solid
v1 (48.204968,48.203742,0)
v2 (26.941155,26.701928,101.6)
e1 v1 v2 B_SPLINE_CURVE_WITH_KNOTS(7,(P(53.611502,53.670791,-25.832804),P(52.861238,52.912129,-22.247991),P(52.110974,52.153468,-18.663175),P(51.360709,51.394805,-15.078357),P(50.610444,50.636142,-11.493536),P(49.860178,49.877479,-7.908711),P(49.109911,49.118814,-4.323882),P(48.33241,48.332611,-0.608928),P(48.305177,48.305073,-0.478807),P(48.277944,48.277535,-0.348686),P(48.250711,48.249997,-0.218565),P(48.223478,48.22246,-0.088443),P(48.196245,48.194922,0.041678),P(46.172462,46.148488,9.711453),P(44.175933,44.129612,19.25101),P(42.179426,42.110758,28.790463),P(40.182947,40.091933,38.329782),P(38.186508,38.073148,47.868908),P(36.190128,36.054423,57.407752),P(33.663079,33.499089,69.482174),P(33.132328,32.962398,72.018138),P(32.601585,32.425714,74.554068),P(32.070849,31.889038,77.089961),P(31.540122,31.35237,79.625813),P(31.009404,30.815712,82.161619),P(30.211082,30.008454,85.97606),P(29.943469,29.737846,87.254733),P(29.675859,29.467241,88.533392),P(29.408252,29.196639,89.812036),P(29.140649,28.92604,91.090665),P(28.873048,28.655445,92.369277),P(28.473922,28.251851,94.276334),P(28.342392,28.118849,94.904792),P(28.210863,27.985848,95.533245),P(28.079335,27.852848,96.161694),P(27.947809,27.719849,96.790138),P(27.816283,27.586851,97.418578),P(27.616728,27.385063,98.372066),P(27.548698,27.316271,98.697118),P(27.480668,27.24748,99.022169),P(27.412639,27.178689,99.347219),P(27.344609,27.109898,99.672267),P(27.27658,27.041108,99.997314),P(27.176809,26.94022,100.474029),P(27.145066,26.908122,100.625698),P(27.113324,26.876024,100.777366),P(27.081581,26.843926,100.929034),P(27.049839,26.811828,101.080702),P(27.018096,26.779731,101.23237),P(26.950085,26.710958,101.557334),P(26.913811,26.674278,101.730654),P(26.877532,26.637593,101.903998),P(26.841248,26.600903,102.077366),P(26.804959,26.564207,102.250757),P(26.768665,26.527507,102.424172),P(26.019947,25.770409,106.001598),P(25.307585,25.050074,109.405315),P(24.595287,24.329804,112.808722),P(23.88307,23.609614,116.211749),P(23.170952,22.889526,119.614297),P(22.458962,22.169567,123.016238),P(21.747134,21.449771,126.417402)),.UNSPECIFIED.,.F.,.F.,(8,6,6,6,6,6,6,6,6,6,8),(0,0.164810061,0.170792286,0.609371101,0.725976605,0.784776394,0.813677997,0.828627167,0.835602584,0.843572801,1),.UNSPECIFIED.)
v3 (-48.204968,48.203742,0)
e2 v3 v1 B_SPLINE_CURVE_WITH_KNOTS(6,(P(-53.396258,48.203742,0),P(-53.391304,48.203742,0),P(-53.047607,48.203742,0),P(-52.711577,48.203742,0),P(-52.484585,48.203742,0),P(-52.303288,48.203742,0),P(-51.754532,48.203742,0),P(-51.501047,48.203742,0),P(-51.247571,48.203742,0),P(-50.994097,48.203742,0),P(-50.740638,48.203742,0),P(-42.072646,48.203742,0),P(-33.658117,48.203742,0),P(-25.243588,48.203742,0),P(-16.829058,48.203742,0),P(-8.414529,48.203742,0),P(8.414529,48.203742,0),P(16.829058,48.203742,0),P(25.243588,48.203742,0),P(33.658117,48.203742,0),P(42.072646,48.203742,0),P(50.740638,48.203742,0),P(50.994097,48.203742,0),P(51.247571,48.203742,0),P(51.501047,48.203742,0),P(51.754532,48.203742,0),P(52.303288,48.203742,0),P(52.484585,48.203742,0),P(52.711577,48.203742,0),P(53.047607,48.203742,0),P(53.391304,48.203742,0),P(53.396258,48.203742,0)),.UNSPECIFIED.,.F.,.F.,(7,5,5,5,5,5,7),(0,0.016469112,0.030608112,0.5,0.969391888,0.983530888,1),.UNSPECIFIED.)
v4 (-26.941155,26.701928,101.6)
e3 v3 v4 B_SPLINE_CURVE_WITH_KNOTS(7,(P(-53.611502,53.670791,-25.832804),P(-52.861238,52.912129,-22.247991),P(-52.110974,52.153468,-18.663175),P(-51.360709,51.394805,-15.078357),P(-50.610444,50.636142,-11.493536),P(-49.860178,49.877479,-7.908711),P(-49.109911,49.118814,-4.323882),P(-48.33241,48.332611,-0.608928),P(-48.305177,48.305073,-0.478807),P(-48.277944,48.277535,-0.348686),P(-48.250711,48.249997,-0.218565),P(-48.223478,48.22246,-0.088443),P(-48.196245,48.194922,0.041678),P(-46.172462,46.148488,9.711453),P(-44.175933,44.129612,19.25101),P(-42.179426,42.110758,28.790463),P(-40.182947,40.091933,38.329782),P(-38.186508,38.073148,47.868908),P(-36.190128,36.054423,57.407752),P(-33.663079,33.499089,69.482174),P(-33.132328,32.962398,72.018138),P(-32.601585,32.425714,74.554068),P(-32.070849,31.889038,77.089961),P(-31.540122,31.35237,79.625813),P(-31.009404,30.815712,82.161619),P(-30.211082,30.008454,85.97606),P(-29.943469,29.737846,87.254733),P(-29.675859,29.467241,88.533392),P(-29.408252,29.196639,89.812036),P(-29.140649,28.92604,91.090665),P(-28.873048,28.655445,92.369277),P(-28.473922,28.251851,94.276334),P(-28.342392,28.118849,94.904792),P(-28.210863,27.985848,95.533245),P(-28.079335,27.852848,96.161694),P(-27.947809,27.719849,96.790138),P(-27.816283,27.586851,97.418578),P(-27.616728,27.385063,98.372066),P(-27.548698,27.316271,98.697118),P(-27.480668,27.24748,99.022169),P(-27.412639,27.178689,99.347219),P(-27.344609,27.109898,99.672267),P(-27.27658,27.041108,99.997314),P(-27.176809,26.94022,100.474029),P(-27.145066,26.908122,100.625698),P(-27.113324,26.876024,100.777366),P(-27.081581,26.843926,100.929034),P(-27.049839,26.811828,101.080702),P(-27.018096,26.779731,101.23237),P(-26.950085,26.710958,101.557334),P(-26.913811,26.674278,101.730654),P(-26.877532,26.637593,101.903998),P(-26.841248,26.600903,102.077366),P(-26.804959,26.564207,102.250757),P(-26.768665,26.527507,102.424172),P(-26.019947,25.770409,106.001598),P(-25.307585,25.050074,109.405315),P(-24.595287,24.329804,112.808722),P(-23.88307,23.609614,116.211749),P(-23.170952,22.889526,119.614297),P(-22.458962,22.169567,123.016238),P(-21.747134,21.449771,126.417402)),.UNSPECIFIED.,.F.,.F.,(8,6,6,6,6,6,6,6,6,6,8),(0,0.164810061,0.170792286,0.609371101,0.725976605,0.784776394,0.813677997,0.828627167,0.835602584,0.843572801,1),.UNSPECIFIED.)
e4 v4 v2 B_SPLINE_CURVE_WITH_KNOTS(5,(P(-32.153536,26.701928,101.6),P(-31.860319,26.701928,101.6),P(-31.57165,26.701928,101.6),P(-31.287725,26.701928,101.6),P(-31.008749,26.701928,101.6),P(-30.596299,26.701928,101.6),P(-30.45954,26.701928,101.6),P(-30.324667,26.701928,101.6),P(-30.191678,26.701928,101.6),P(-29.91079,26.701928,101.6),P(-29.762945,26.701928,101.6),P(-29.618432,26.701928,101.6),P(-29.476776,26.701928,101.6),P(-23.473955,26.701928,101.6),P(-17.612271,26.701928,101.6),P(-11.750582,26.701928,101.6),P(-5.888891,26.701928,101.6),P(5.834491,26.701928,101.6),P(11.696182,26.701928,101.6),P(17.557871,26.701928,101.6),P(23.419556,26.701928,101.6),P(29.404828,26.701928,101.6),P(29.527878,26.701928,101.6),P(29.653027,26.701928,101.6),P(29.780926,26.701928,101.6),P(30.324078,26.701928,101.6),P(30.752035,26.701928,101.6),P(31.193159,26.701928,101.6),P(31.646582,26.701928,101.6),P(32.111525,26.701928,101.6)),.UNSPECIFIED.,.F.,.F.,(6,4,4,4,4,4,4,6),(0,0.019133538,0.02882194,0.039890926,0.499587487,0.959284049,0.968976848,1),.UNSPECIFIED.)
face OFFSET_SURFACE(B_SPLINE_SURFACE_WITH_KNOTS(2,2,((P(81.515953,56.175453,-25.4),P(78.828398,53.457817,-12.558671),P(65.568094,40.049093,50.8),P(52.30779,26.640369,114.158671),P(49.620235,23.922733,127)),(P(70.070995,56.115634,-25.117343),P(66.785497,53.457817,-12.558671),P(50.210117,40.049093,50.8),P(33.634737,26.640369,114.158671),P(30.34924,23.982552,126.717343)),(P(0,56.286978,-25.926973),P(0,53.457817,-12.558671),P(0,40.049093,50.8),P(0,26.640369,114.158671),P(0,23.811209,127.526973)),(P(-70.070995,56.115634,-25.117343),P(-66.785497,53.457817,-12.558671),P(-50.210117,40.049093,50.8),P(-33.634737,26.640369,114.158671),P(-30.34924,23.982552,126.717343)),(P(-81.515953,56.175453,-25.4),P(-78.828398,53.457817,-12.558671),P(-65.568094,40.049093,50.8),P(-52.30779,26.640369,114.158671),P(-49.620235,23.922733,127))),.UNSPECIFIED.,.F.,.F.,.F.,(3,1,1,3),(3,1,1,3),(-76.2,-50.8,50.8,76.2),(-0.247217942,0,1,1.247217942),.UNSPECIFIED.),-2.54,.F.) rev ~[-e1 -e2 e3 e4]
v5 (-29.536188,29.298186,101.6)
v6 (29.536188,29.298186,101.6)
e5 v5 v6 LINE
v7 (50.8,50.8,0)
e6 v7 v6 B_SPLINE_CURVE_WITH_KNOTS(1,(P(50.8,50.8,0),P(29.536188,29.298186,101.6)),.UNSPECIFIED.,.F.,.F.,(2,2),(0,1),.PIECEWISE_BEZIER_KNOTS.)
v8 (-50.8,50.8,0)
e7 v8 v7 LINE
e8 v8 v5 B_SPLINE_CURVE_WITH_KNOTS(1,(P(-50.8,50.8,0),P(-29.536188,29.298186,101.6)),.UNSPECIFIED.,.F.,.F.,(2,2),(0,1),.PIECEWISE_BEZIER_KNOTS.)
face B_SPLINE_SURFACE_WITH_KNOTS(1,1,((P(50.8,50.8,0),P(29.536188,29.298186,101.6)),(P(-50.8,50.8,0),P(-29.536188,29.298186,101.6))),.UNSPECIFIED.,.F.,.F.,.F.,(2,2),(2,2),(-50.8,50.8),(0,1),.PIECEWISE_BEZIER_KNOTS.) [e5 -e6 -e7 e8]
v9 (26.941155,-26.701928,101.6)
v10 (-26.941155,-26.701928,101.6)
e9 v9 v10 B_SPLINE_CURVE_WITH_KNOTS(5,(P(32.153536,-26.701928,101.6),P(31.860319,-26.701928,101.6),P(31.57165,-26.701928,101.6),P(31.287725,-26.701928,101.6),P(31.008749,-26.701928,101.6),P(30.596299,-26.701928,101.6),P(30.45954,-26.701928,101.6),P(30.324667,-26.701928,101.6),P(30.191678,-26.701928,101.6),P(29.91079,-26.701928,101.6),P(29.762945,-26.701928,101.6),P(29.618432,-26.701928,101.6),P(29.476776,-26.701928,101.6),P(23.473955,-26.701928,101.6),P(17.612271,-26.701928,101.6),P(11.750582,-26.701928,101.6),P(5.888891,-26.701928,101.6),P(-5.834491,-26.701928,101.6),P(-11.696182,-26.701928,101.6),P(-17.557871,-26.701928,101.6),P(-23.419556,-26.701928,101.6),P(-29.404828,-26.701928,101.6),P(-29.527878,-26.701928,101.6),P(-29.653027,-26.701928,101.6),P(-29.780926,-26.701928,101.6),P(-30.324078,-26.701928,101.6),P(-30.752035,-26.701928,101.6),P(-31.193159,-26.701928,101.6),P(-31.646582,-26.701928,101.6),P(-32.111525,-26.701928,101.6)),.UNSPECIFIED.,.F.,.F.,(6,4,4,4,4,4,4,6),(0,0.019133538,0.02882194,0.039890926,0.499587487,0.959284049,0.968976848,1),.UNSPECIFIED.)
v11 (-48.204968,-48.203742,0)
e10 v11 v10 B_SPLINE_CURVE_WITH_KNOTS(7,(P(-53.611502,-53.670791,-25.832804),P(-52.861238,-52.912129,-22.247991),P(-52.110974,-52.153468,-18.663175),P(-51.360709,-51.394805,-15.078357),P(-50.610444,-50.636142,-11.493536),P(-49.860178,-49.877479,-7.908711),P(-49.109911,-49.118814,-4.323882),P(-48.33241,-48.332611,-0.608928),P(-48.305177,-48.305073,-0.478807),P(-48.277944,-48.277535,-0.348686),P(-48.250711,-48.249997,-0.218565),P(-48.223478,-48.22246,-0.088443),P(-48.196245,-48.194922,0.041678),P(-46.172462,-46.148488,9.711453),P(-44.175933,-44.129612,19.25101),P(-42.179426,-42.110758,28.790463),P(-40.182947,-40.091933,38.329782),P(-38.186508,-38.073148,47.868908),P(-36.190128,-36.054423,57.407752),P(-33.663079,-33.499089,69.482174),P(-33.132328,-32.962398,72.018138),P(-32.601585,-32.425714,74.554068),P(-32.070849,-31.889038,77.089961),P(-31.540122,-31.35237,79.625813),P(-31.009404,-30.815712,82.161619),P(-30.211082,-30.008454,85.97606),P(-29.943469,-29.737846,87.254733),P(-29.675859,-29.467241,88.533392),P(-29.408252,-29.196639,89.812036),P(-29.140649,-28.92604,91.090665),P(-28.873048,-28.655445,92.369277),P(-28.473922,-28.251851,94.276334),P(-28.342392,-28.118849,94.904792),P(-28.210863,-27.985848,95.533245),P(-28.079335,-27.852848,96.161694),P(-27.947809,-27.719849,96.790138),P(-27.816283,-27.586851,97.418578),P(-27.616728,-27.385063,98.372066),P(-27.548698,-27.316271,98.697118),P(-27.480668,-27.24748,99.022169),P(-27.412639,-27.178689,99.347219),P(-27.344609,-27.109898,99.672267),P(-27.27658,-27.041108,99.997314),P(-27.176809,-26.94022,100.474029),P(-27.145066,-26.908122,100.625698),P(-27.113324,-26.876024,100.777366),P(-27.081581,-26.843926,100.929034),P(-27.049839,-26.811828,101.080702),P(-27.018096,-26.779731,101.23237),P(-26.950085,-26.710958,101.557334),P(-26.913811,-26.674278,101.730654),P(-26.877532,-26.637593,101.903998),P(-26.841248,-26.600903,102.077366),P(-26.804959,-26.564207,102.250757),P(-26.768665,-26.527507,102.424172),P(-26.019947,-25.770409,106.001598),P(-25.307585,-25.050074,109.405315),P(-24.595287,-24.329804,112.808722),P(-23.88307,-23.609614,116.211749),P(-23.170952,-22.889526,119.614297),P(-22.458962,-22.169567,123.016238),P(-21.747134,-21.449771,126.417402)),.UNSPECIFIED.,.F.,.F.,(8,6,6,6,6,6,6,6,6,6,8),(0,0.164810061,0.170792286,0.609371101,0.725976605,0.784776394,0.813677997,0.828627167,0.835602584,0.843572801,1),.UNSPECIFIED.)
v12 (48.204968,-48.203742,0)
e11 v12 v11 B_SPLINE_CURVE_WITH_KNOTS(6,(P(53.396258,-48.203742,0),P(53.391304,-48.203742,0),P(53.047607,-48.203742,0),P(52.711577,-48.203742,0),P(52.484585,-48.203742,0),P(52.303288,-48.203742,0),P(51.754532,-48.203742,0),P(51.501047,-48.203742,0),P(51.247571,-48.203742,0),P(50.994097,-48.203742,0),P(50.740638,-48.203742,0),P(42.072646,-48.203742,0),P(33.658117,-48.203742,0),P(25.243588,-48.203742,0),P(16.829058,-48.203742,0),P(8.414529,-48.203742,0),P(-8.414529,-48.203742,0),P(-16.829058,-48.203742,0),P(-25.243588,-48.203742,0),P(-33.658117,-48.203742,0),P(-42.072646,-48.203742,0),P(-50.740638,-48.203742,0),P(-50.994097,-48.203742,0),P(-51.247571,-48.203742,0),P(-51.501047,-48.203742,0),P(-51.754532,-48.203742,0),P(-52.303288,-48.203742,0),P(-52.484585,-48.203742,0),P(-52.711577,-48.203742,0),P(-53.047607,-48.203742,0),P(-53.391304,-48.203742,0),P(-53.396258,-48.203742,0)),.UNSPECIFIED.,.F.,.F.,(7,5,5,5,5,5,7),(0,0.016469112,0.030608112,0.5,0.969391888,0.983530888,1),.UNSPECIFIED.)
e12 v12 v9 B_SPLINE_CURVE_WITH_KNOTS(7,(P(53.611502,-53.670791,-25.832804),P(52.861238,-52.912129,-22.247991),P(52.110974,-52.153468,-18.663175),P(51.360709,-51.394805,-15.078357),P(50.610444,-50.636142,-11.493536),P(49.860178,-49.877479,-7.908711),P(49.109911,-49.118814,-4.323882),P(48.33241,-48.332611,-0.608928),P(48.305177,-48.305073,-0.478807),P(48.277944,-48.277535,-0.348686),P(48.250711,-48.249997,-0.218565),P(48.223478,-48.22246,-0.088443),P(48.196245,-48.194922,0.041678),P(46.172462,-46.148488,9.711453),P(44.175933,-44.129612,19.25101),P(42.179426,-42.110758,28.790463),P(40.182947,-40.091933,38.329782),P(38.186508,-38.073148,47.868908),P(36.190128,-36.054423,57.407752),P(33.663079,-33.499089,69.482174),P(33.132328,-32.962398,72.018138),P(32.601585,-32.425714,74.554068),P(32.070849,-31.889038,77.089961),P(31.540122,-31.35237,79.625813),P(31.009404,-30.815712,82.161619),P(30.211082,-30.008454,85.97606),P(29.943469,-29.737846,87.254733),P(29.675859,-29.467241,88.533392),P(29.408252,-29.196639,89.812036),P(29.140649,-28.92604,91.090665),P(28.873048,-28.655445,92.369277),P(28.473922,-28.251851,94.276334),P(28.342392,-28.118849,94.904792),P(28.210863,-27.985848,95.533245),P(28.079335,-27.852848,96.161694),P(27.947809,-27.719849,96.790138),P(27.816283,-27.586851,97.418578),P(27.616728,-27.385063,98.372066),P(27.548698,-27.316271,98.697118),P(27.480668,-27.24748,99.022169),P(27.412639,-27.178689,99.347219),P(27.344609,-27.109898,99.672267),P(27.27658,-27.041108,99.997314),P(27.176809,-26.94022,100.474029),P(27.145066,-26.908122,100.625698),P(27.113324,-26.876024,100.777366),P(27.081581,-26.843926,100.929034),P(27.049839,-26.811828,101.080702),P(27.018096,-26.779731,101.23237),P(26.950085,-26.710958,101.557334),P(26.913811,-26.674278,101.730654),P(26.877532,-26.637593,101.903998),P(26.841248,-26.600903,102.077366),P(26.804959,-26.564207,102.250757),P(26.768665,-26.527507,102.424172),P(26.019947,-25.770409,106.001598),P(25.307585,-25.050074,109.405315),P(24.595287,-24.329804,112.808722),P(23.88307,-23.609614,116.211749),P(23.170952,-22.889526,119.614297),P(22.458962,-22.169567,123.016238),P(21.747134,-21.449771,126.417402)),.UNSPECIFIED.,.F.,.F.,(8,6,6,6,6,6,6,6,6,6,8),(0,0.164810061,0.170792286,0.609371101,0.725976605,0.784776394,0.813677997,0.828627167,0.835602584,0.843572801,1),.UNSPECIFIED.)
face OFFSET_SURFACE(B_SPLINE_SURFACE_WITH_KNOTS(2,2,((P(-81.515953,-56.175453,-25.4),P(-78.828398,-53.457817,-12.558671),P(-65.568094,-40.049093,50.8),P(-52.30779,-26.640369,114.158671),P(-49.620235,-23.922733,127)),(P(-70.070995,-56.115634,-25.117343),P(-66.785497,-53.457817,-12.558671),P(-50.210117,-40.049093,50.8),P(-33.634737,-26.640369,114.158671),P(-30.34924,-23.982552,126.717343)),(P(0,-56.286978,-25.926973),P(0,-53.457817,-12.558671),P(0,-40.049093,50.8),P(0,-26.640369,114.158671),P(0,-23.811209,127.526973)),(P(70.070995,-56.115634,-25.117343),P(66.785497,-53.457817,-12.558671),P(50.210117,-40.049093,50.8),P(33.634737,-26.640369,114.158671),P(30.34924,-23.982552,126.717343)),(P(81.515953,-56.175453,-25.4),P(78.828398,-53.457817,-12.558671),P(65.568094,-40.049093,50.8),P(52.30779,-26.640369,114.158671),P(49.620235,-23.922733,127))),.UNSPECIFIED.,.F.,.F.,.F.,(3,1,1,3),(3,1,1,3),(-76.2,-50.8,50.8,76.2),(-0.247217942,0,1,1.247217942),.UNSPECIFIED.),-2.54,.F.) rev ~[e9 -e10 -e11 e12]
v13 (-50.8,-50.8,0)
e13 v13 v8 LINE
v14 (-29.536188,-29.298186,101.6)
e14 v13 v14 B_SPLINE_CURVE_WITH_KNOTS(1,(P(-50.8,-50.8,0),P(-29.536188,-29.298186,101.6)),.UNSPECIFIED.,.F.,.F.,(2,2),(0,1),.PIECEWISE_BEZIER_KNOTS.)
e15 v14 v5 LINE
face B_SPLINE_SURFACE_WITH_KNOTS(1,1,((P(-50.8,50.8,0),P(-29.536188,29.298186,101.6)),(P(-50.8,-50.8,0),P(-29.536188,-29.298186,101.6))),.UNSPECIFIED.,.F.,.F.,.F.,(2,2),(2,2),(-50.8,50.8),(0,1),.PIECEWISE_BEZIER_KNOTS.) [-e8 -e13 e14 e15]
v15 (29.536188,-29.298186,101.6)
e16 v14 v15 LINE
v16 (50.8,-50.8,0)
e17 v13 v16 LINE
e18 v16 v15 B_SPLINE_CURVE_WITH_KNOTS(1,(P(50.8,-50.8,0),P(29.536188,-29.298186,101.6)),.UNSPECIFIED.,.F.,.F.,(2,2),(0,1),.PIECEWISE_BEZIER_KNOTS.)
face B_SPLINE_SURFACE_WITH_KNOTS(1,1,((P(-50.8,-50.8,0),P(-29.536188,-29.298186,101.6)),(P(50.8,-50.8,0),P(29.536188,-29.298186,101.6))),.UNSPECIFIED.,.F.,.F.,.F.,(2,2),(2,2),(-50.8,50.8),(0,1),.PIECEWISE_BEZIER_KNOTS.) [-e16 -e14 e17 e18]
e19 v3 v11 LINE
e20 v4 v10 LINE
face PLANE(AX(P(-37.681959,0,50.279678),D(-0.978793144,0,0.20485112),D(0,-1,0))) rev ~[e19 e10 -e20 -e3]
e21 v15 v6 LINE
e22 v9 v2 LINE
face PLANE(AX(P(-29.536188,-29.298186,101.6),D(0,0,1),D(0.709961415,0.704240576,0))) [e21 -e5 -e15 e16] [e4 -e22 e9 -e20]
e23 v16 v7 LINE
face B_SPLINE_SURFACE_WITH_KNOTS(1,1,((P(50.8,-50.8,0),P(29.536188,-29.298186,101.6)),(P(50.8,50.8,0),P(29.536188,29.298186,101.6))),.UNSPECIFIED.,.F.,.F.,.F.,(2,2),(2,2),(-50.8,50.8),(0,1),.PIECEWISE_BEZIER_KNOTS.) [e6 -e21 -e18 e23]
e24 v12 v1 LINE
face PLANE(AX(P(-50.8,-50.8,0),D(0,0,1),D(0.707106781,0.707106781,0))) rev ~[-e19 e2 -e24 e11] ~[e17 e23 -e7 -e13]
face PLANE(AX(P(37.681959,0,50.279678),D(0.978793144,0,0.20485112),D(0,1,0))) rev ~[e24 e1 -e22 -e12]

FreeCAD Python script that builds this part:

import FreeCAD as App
import Part
import Sketcher

V = App.Vector
Q = App.Units.Quantity


def faces_at(feature, points):
    """Names of the faces that lie closest to the given points."""
    faces = feature.Shape.Faces
    near = lambda p: min(range(len(faces)), key=lambda i: faces[i].distToShape(Part.Vertex(*p))[0])
    return sorted({f"Face{near(p) + 1}" for p in points})


def add_polygon(sketch, points):
    """Adds a closed chain of lines whose ends are joined by coincident constraints."""
    first, n = sketch.GeometryCount, len(points)
    for a, b in zip(points, points[1:] + points[:1]):
        sketch.addGeometry(Part.LineSegment(App.Vector(*a, 0), App.Vector(*b, 0)), False)
    for i in range(n):
        sketch.addConstraint(Sketcher.Constraint("Coincident", first + i, 2, first + (i + 1) % n, 1))

doc = App.newDocument("Part")
body = doc.addObject("PartDesign::Body", "Body")

# Sketch on XY plane
sketch1 = doc.addObject("Sketcher::SketchObject", "Sketch")
body.addObject(sketch1)
sketch1.AttachmentSupport = (doc.XY_Plane, [""])
sketch1.MapMode = "FlatFace"
add_polygon(sketch1, [(-51, 51), (-51, -51), (51, -51), (51, 51)])  # lines 0-3
sketch1.addConstraint(Sketcher.Constraint("Vertical", 0))
sketch1.addConstraint(Sketcher.Constraint("Horizontal", 1))
sketch1.addConstraint(Sketcher.Constraint("Vertical", 2))
sketch1.addConstraint(Sketcher.Constraint("Horizontal", 3))
sketch1.addConstraint(Sketcher.Constraint("Symmetric", 0, 2, 2, 2, -1, 1))
sketch1.addConstraint(Sketcher.Constraint("Equal", 3, 0))
sketch1.addConstraint(Sketcher.Constraint("DistanceX", 1, 1, 1, 2, Q("4 in")))

# Sketch on XY plane
sketch2 = doc.addObject("Sketcher::SketchObject", "Sketch001")
body.addObject(sketch2)
sketch2.AttachmentSupport = (doc.XY_Plane, [""])
sketch2.MapMode = "FlatFace"
sketch2.AttachmentOffset = App.Placement(V(0, 0, 4 * 25.4), App.Rotation())
add_polygon(sketch2, [(-30, 29), (-30, -29), (30, -29), (30, 29)])  # lines 0-3
sketch2.addConstraint(Sketcher.Constraint("Vertical", 0))
sketch2.addConstraint(Sketcher.Constraint("Horizontal", 1))
sketch2.addConstraint(Sketcher.Constraint("Vertical", 2))
sketch2.addConstraint(Sketcher.Constraint("Horizontal", 3))
sketch2.addConstraint(Sketcher.Constraint("Symmetric", 0, 2, 2, 2, -1, 1))
sketch2.addConstraint(Sketcher.Constraint("DistanceX", 1, 1, 1, 2, Q("59.072375 mm")))
sketch2.addConstraint(Sketcher.Constraint("DistanceY", 0, 2, 0, 1, Q("58.596373 mm")))

additiveloft = doc.addObject("PartDesign::AdditiveLoft", "AdditiveLoft")
body.addObject(additiveloft)
additiveloft.Profile = sketch1
additiveloft.Sections = [sketch2]
doc.recompute()

thickness = doc.addObject("PartDesign::Thickness", "Thickness")
body.addObject(thickness)
thickness.Base = (additiveloft, faces_at(additiveloft, [(0, 0, 0), (0, 0, 101.6)]))
thickness.Value = Q("0.1 in")
thickness.Reversed = True
thickness.Join = "Intersection"

doc.recompute()
